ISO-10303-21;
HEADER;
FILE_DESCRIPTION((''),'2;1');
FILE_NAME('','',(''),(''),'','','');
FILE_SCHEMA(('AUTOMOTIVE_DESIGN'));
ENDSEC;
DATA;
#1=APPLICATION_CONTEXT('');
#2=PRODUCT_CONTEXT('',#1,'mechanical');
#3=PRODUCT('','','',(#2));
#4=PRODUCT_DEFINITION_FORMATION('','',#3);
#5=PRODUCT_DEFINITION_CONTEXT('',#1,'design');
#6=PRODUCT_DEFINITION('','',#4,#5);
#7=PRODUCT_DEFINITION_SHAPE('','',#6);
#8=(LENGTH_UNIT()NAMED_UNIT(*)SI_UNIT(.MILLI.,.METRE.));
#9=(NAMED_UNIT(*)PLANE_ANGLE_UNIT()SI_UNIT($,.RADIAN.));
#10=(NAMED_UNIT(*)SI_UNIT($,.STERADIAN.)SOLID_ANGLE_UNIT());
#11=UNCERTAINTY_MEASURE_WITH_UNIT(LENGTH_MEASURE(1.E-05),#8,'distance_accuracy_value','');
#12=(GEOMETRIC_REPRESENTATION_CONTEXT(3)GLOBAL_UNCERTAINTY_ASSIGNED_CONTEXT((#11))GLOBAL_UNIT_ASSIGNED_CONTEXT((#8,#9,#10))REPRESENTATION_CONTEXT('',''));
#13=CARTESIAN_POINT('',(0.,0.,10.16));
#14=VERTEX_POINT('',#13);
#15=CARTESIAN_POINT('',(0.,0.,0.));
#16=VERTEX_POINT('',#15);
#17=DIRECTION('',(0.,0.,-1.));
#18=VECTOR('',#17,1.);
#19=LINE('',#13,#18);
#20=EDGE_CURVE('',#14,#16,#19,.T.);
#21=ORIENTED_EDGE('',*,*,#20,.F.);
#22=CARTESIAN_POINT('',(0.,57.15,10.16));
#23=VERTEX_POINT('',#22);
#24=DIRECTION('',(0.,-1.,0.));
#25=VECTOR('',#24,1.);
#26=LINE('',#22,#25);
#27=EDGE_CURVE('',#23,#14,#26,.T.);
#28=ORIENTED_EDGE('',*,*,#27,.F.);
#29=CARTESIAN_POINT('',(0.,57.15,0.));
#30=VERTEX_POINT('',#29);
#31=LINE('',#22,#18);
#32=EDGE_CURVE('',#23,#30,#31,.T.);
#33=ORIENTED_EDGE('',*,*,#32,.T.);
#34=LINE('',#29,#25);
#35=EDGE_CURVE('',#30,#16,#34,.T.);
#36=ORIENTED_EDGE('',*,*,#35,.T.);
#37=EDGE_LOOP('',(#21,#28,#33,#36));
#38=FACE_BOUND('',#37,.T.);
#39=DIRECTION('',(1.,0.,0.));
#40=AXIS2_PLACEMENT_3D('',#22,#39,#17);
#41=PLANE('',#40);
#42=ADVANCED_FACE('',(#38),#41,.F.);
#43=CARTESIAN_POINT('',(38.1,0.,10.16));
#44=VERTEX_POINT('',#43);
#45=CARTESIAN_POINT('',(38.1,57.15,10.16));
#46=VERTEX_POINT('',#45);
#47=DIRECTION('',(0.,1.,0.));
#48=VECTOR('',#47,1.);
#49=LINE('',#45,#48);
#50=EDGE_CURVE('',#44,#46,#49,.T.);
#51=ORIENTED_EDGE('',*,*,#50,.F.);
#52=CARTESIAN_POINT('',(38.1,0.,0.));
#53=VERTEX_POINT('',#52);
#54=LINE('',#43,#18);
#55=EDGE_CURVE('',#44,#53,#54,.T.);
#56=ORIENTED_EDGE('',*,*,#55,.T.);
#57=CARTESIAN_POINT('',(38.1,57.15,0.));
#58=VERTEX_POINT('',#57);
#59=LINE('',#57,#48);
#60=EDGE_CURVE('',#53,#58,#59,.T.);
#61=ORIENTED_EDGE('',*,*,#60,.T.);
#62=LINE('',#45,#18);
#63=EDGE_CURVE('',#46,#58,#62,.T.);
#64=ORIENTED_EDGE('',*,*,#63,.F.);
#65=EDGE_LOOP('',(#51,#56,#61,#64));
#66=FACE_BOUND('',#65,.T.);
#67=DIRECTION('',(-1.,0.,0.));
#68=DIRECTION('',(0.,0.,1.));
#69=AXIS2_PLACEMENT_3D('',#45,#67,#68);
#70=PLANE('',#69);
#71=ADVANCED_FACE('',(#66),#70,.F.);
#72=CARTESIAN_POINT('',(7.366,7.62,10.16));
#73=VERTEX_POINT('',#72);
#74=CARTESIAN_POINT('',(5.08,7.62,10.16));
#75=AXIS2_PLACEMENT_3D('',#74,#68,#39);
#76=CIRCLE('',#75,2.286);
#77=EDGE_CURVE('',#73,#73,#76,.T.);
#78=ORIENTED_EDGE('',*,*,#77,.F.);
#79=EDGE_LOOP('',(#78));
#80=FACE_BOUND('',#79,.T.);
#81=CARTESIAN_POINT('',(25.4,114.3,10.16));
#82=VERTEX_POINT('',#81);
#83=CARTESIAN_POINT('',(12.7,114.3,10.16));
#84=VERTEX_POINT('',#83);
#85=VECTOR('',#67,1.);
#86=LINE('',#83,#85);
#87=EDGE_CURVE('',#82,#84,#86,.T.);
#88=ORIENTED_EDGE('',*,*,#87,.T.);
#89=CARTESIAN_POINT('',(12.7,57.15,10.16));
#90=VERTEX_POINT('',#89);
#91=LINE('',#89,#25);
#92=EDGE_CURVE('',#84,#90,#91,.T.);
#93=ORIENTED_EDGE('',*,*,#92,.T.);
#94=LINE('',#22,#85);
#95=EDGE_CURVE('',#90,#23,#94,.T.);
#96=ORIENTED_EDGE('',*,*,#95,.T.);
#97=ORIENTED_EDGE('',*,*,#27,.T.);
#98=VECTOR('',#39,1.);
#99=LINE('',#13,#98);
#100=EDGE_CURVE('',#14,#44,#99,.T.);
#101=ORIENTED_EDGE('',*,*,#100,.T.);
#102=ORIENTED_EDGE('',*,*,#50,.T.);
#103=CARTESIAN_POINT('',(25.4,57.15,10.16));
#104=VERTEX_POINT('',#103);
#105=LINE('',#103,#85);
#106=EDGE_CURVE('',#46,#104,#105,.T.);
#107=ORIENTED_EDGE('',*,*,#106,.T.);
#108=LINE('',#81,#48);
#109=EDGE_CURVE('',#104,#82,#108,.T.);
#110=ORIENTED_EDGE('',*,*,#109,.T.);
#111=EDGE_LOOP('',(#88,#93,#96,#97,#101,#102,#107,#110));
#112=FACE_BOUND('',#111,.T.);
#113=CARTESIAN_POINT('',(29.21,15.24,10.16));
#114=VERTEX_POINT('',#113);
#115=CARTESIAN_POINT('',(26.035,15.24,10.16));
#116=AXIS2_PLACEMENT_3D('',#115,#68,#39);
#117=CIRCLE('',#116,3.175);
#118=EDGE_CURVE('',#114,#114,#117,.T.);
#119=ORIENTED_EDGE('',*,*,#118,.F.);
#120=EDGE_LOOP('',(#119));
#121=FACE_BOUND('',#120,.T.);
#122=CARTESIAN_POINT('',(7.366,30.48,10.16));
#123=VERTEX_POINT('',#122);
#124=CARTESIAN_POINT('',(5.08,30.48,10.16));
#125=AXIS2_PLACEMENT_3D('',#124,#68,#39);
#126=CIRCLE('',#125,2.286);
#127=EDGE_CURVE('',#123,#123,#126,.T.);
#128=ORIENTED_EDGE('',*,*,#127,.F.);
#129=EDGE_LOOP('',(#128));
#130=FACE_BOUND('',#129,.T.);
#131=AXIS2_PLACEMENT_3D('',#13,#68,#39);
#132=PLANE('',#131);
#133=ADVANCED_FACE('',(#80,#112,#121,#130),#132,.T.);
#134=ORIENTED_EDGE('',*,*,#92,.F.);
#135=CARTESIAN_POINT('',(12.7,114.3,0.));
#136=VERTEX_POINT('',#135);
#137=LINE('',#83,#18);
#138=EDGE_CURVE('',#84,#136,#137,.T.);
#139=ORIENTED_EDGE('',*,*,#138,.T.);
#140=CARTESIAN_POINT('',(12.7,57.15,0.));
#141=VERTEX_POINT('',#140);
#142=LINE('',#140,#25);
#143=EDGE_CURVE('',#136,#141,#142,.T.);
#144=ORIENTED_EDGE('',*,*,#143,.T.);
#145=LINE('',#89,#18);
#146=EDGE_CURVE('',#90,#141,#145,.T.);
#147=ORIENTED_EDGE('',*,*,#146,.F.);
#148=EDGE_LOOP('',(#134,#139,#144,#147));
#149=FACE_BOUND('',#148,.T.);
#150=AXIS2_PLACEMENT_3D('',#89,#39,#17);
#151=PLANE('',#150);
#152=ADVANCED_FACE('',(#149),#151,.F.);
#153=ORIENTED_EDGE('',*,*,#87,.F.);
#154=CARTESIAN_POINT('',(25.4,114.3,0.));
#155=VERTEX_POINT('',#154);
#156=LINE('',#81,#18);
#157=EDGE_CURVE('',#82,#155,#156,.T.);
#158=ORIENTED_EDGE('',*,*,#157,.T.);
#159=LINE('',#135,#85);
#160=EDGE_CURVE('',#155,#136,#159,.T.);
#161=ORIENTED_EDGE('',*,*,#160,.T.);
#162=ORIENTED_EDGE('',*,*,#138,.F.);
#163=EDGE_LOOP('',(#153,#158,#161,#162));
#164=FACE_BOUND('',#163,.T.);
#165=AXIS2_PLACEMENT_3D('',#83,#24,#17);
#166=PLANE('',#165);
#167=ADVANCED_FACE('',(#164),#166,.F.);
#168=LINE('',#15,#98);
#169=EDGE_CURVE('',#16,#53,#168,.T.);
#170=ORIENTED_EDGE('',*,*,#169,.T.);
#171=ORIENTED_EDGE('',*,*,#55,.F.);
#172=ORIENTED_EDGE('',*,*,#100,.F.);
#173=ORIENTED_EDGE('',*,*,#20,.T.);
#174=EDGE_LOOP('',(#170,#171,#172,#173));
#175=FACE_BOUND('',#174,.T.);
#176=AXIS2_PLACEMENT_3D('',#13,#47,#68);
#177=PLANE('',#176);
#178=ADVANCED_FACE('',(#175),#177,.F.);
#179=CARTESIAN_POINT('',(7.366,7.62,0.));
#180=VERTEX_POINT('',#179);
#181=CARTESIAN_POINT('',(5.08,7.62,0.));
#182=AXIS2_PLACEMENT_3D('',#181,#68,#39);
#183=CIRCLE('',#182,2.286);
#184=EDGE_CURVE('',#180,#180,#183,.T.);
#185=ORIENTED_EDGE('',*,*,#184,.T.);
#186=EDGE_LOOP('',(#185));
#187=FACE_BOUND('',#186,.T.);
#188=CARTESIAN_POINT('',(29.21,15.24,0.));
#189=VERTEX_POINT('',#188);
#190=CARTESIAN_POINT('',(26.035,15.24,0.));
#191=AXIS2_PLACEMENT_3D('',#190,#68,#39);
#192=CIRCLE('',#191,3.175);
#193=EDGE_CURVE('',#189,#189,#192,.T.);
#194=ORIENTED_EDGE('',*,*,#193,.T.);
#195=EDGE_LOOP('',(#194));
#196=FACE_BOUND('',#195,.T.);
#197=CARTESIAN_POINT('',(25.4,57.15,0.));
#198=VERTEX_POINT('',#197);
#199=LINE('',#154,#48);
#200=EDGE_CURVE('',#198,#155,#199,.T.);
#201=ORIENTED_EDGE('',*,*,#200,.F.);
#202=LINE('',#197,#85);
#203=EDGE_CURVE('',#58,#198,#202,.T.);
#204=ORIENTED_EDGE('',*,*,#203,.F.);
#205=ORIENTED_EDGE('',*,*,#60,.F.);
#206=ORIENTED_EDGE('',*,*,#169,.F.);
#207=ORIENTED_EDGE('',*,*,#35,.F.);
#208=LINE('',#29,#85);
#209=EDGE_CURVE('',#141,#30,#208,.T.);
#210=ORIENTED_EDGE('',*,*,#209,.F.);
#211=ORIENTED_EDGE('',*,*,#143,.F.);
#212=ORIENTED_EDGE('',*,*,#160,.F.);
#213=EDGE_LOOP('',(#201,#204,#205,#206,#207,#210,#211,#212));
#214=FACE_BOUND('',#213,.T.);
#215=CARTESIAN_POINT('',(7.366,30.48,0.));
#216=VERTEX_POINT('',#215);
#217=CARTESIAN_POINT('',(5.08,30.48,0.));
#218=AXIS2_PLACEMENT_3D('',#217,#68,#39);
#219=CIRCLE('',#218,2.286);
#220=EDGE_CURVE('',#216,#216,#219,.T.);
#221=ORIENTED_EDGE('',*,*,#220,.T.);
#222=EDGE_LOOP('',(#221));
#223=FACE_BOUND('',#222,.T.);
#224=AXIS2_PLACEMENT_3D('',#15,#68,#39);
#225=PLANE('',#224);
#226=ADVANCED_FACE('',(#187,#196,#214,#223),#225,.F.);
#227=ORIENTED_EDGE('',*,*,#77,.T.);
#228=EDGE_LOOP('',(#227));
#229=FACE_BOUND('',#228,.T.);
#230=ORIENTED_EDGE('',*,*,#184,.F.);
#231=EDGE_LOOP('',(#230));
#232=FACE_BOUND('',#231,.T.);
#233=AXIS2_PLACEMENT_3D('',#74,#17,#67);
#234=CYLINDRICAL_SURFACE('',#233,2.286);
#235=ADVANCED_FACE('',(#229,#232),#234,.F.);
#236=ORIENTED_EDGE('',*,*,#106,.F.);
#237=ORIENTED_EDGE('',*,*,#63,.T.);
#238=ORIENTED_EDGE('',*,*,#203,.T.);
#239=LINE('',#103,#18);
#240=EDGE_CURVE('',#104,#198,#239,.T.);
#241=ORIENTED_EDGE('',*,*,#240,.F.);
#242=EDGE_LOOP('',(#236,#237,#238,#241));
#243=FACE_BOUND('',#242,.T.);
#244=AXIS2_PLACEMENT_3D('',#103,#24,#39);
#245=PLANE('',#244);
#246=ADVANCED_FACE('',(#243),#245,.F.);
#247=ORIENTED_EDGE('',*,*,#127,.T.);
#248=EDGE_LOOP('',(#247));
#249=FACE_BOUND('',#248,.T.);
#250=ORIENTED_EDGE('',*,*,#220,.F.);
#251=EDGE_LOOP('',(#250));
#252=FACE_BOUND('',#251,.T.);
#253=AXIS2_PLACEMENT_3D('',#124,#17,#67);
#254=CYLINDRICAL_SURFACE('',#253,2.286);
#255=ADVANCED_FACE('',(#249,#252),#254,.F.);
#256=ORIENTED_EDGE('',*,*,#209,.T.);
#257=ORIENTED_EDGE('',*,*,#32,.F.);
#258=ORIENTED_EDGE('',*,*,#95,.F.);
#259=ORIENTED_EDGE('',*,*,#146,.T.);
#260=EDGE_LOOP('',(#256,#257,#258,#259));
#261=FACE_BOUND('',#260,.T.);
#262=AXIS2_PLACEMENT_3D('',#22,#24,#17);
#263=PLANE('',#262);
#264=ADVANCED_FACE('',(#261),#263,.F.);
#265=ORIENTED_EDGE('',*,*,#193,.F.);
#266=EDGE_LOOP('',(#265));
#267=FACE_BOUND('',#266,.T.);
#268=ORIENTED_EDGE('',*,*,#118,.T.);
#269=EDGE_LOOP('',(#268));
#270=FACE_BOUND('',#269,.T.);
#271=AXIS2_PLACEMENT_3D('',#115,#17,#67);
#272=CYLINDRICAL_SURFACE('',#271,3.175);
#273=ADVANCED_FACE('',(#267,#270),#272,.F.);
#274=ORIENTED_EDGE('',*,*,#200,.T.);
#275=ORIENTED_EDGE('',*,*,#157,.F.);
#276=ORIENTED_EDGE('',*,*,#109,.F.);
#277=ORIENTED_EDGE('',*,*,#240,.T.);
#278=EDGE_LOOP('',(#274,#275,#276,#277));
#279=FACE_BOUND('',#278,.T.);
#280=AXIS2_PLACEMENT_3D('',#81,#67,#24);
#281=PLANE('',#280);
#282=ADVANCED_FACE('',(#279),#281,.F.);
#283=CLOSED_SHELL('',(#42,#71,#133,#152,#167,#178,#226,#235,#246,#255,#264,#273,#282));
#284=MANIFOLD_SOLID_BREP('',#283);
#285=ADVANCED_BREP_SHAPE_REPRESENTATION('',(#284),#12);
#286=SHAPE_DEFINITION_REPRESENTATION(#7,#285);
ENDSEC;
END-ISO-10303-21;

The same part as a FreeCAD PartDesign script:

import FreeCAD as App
import Part
import Sketcher

V = App.Vector
Q = App.Units.Quantity


def add_polygon(sketch, points):
    """Adds a closed chain of lines whose ends are joined by coincident constraints."""
    first, n = sketch.GeometryCount, len(points)
    for a, b in zip(points, points[1:] + points[:1]):
        sketch.addGeometry(Part.LineSegment(App.Vector(*a, 0), App.Vector(*b, 0)), False)
    for i in range(n):
        sketch.addConstraint(Sketcher.Constraint("Coincident", first + i, 2, first + (i + 1) % n, 1))

doc = App.newDocument("Part")
body = doc.addObject("PartDesign::Body", "Body")

sketch1 = body.newObject("Sketcher::SketchObject", "Sketch")
sketch1.AttachmentSupport = (doc.getObject("XY_Plane"), [""])
sketch1.MapMode = "FlatFace"
add_polygon(sketch1, [(12.7, 57.1), (0, 57.1), (0, 0), (38.1, 0), (38.1, 57.1), (25.4, 57.1), (25.4, 114.3), (12.7, 114.3)])
sketch1.addGeometry(Part.Circle(V(26, 15.2, 0), V(0, 0, 1), 3.2), False)
sketch1.addGeometry(Part.Circle(V(5.1, 7.6, 0), V(0, 0, 1), 2.3), False)
sketch1.addGeometry(Part.Circle(V(5.1, 30.5, 0), V(0, 0, 1), 2.3), False)
sketch1.addConstraint([
    Sketcher.Constraint("Horizontal", 0),
    Sketcher.Constraint("Vertical", 1),
    Sketcher.Constraint("Horizontal", 2),
    Sketcher.Constraint("Vertical", 3),
    Sketcher.Constraint("Horizontal", 4),
    Sketcher.Constraint("Vertical", 5),
    Sketcher.Constraint("Horizontal", 6),
    Sketcher.Constraint("Vertical", 7),
    Sketcher.Constraint("Coincident", 1, 2, -1, 1),
    Sketcher.Constraint("Equal", 9, 10),
    Sketcher.Constraint("Horizontal", 0, 2, 3, 2),
    Sketcher.Constraint("Vertical", 9, 3, 10, 3),
    Sketcher.Constraint("Equal", 0, 4),
    Sketcher.Constraint("Equal", 4, 6),
    Sketcher.Constraint("Equal", 3, 5),
    Sketcher.Constraint("Diameter", 8, Q("0.25 in")),
    Sketcher.Constraint("Diameter", 9, Q("0.18 in")),
    Sketcher.Constraint("DistanceX", 0, 2, 0, 1, Q("0.5 in")),
    Sketcher.Constraint("DistanceY", 1, 2, 1, 1, Q("2.25 in")),
    Sketcher.Constraint("DistanceY", -1, 1, 8, 3, Q("0.6 in")),
    Sketcher.Constraint("DistanceX", -1, 1, 9, 3, Q("0.2 in")),
    Sketcher.Constraint("DistanceY", -1, 1, 9, 3, Q("0.3 in")),
    Sketcher.Constraint("DistanceY", -1, 1, 10, 3, Q("1.2 in")),
    Sketcher.Constraint("DistanceX", -1, 1, 8, 3, Q("1.025 in")),
])
pad1 = body.newObject("PartDesign::Pad", "Pad")
pad1.Profile = sketch1
pad1.Length = Q("0.4 in")

doc.recompute()
